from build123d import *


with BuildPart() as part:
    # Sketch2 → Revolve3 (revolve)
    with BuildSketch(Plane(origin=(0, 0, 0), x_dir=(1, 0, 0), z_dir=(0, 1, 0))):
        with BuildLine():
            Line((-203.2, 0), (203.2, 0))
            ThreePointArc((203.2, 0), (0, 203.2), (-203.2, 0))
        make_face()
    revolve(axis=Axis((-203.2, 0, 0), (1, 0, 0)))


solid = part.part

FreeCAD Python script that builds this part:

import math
import FreeCAD as App
import Part
import Sketcher
Q = App.Units.Quantity

doc = App.newDocument("Part")
params = doc.addObject("Spreadsheet::Sheet", "Params")
for row, (alias, value) in enumerate([
    ("sketch1_radius", "8 in"),
    ("revolution_angle", "360 deg"),
], start=1):
    params.set(f"A{row}", alias)
    params.set(f"B{row}", "=" + value)
    params.setAlias(f"B{row}", alias)

body = doc.addObject("PartDesign::Body", "Body")

sketch1 = doc.addObject("Sketcher::SketchObject", "Sketch")
body.addObject(sketch1)
sketch1.AttachmentSupport = (doc.XZ_Plane, [""])
sketch1.MapMode = "FlatFace"
sketch1.addGeometry([
    Part.LineSegment(App.Vector(-203.2, 0, 0), App.Vector(203.2, 0, 0)),
    Part.ArcOfCircle(Part.Circle(App.Vector(0, 0, 0), App.Vector(0, 0, 1), 203.2), math.radians(180), math.radians(360)),
], False)
sketch1.addConstraint([
    Sketcher.Constraint("Coincident", 0, 1, 1, 1),
    Sketcher.Constraint("Coincident", 1, 2, 0, 2),
    Sketcher.Constraint("Horizontal", 0),
    Sketcher.Constraint("Coincident", 1, 3, -1, 1),
    Sketcher.Constraint("PointOnObject", 0, 1, -1),
    Sketcher.Constraint("Radius", 1, Q("8 in")),
])
sketch1.setExpression("Constraints[5]", "Params.sketch1_radius")
revolution = doc.addObject("PartDesign::Revolution", "Revolution")
body.addObject(revolution)
revolution.Profile = sketch1
revolution.ReferenceAxis = (sketch1, ["H_Axis"])
revolution.setExpression("Angle", "Params.revolution_angle")

doc.recompute()
